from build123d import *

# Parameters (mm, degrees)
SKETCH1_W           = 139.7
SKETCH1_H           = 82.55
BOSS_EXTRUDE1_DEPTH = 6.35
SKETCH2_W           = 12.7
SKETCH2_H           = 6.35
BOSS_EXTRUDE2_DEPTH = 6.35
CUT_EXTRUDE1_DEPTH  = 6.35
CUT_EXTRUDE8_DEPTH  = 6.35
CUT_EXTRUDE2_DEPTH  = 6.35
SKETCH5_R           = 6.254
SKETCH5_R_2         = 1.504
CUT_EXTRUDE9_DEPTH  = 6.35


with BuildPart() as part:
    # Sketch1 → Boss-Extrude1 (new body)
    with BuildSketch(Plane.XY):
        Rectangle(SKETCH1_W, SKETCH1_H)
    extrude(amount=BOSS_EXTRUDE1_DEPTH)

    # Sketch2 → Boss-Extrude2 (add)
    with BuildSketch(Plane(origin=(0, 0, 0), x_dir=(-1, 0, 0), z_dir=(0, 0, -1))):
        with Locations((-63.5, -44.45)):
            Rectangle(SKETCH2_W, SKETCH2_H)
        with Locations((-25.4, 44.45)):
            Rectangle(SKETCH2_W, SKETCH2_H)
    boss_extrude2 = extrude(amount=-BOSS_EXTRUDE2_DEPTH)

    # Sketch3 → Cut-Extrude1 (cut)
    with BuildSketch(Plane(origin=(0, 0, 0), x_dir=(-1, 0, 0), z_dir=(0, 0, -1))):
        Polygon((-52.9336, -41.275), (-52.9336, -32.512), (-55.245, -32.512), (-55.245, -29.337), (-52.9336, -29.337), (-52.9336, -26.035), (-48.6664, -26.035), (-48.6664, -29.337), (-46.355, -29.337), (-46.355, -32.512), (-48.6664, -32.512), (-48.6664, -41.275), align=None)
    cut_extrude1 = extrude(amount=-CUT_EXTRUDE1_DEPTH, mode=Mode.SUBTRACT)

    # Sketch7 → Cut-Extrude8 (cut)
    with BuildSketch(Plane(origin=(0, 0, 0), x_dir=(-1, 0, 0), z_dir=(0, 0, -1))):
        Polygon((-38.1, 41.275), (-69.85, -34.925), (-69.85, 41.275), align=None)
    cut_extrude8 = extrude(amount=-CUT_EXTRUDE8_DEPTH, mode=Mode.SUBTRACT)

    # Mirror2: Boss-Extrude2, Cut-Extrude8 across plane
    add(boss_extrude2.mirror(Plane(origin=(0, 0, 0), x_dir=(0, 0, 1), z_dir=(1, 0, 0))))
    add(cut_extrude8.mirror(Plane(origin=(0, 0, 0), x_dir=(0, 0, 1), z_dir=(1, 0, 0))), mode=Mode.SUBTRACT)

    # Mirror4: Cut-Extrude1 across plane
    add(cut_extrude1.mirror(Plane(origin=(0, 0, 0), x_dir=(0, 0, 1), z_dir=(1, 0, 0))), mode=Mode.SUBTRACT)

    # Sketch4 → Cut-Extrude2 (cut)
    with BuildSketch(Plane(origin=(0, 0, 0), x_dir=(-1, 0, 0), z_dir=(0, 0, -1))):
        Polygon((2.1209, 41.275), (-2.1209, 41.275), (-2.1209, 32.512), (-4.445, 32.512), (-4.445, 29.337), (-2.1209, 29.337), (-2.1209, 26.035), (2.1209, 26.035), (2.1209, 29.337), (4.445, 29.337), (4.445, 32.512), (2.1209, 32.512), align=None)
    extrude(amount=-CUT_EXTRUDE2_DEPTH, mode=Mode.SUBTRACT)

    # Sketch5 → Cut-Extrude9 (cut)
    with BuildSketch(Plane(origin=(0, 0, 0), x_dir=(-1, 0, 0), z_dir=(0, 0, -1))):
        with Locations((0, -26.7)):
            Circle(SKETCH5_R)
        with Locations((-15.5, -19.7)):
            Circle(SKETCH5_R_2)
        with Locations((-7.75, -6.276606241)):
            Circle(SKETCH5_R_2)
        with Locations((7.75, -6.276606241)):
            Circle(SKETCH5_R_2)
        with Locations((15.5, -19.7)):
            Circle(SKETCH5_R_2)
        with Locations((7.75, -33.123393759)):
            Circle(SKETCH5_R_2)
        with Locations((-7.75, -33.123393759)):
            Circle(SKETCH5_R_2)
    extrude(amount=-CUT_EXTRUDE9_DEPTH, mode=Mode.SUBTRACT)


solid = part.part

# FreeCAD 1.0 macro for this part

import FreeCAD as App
import Part
import Sketcher
from FreeCAD import Vector
Q = App.Units.Quantity

doc = App.newDocument("Part")
body = doc.addObject("PartDesign::Body", "Body")

sketch1 = body.newObject("Sketcher::SketchObject", "Sketch")
sketch1.AttachmentSupport = (doc.getObject("XY_Plane"), [""])
sketch1.MapMode = "FlatFace"
sketch1.addGeometry([
    Part.LineSegment(Vector(-70, 41, 0), Vector(-70, -41, 0)),
    Part.LineSegment(Vector(-70, -41, 0), Vector(70, -41, 0)),
    Part.LineSegment(Vector(70, -41, 0), Vector(70, 41, 0)),
    Part.LineSegment(Vector(70, 41, 0), Vector(-70, 41, 0)),
], False)
sketch1.addConstraint([
    Sketcher.Constraint("Coincident", 0, 2, 1, 1),
    Sketcher.Constraint("Coincident", 1, 2, 2, 1),
    Sketcher.Constraint("Coincident", 2, 2, 3, 1),
    Sketcher.Constraint("Coincident", 3, 2, 0, 1),
    Sketcher.Constraint("Vertical", 0),
    Sketcher.Constraint("Horizontal", 1),
    Sketcher.Constraint("Vertical", 2),
    Sketcher.Constraint("Horizontal", 3),
    Sketcher.Constraint("Symmetric", 0, 2, 2, 2, -1, 1),
    Sketcher.Constraint("DistanceX", 1, 1, 1, 2, Q("5.5 in")),
    Sketcher.Constraint("DistanceY", 0, 2, 0, 1, Q("3.25 in")),
])
pad1 = body.newObject("PartDesign::Pad", "Pad")
pad1.Profile = sketch1
pad1.Length = Q("0.25 in")

sketch2 = body.newObject("Sketcher::SketchObject", "Sketch001")
sketch2.AttachmentSupport = (doc.getObject("XY_Plane"), [""])
sketch2.MapMode = "FlatFace"
sketch2.addGeometry([
    Part.LineSegment(Vector(70, -41, 0), Vector(70, -48, 0)),
    Part.LineSegment(Vector(70, -48, 0), Vector(57, -48, 0)),
    Part.LineSegment(Vector(57, -48, 0), Vector(57, -41, 0)),
    Part.LineSegment(Vector(57, -41, 0), Vector(70, -41, 0)),
    Part.LineSegment(Vector(32, 48, 0), Vector(32, 41, 0)),
    Part.LineSegment(Vector(32, 41, 0), Vector(19, 41, 0)),
    Part.LineSegment(Vector(19, 41, 0), Vector(19, 48, 0)),
    Part.LineSegment(Vector(19, 48, 0), Vector(32, 48, 0)),
], False)
sketch2.addConstraint([
    Sketcher.Constraint("Coincident", 0, 2, 1, 1),
    Sketcher.Constraint("Coincident", 1, 2, 2, 1),
    Sketcher.Constraint("Coincident", 2, 2, 3, 1),
    Sketcher.Constraint("Coincident", 3, 2, 0, 1),
    Sketcher.Constraint("Coincident", 4, 2, 5, 1),
    Sketcher.Constraint("Coincident", 5, 2, 6, 1),
    Sketcher.Constraint("Coincident", 6, 2, 7, 1),
    Sketcher.Constraint("Coincident", 7, 2, 4, 1),
    Sketcher.Constraint("Vertical", 0),
    Sketcher.Constraint("Horizontal", 1),
    Sketcher.Constraint("Vertical", 2),
    Sketcher.Constraint("Horizontal", 3),
    Sketcher.Constraint("Vertical", 4),
    Sketcher.Constraint("Horizontal", 5),
    Sketcher.Constraint("Vertical", 6),
    Sketcher.Constraint("Horizontal", 7),
    Sketcher.Constraint("Equal", 3, 5),
    Sketcher.Constraint("Equal", 2, 4),
    Sketcher.Constraint("DistanceX", 1, 2, 1, 1, Q("0.5 in")),
    Sketcher.Constraint("DistanceX", 4, 2, 2, 2, Q("1 in")),
    Sketcher.Constraint("DistanceY", 0, 2, 0, 1, Q("0.25 in")),
    Sketcher.Constraint("DistanceY", 1, 2, 4, 2, Q("3.5 in")),
    Sketcher.Constraint("DistanceX", -1, 1, 0, 2, Q("2.75 in")),
    Sketcher.Constraint("DistanceY", 0, 2, -1, 1, Q("1.875 in")),
])
pad2 = body.newObject("PartDesign::Pad", "Pad001")
pad2.Profile = sketch2
pad2.Length = Q("0.25 in")

sketch3 = body.newObject("Sketcher::SketchObject", "Sketch002")
sketch3.AttachmentSupport = (doc.getObject("XY_Plane"), [""])
sketch3.MapMode = "FlatFace"
sketch3.addGeometry([
    Part.LineSegment(Vector(52.9, -32.5, 0), Vector(52.9, -41.3, 0)),
    Part.LineSegment(Vector(52.9, -41.3, 0), Vector(48.7, -41.3, 0)),
    Part.LineSegment(Vector(48.7, -41.3, 0), Vector(48.7, -32.5, 0)),
    Part.LineSegment(Vector(48.7, -32.5, 0), Vector(46.4, -32.5, 0)),
    Part.LineSegment(Vector(46.4, -32.5, 0), Vector(46.4, -29.3, 0)),
    Part.LineSegment(Vector(46.4, -29.3, 0), Vector(48.7, -29.3, 0)),
    Part.LineSegment(Vector(48.7, -29.3, 0), Vector(48.7, -26, 0)),
    Part.LineSegment(Vector(48.7, -26, 0), Vector(52.9, -26, 0)),
    Part.LineSegment(Vector(52.9, -26, 0), Vector(52.9, -29.3, 0)),
    Part.LineSegment(Vector(52.9, -29.3, 0), Vector(55.2, -29.3, 0)),
    Part.LineSegment(Vector(55.2, -29.3, 0), Vector(55.2, -32.5, 0)),
    Part.LineSegment(Vector(55.2, -32.5, 0), Vector(52.9, -32.5, 0)),
], False)
sketch3.addConstraint([
    Sketcher.Constraint("Coincident", 0, 2, 1, 1),
    Sketcher.Constraint("Coincident", 1, 2, 2, 1),
    Sketcher.Constraint("Coincident", 2, 2, 3, 1),
    Sketcher.Constraint("Coincident", 3, 2, 4, 1),
    Sketcher.Constraint("Coincident", 4, 2, 5, 1),
    Sketcher.Constraint("Coincident", 5, 2, 6, 1),
    Sketcher.Constraint("Coincident", 6, 2, 7, 1),
    Sketcher.Constraint("Coincident", 7, 2, 8, 1),
    Sketcher.Constraint("Coincident", 8, 2, 9, 1),
    Sketcher.Constraint("Coincident", 9, 2, 10, 1),
    Sketcher.Constraint("Coincident", 10, 2, 11, 1),
    Sketcher.Constraint("Coincident", 11, 2, 0, 1),
    Sketcher.Constraint("Vertical", 0),
    Sketcher.Constraint("Horizontal", 1),
    Sketcher.Constraint("Vertical", 2),
    Sketcher.Constraint("Horizontal", 3),
    Sketcher.Constraint("Vertical", 4),
    Sketcher.Constraint("Horizontal", 5),
    Sketcher.Constraint("Vertical", 6),
    Sketcher.Constraint("Horizontal", 7),
    Sketcher.Constraint("Vertical", 8),
    Sketcher.Constraint("Horizontal", 9),
    Sketcher.Constraint("Vertical", 10),
    Sketcher.Constraint("Horizontal", 11),
    Sketcher.Constraint("Horizontal", 5, 2, 8, 2),
    Sketcher.Constraint("Horizontal", 3, 2, 10, 2),
    Sketcher.Constraint("Vertical", 2, 2, 5, 2),
    Sketcher.Constraint("Vertical", 0, 2, 7, 2),
    Sketcher.Constraint("Equal", 5, 9),
    Sketcher.Constraint("DistanceY", 6, 1, 6, 2, Q("0.13 in")),
    Sketcher.Constraint("DistanceY", 1, 2, 6, 2, Q("0.6 in")),
    Sketcher.Constraint("DistanceX", 1, 2, 1, 1, Q("0.168 in")),
    Sketcher.Constraint("DistanceX", 3, 2, 3, 1, Q("0.091 in")),
    Sketcher.Constraint("DistanceY", 0, 2, 0, 1, Q("0.345 in")),
    Sketcher.Constraint("DistanceY", 2, 2, -1, 1, Q("1.28 in")),
    Sketcher.Constraint("DistanceX", -1, 1, 0, 2, Q("2.084 in")),
])
pocket1 = body.newObject("PartDesign::Pocket", "Pocket")
pocket1.Profile = sketch3
pocket1.Length = Q("0.25 in")
pocket1.Reversed = True

sketch4 = body.newObject("Sketcher::SketchObject", "Sketch003")
sketch4.AttachmentSupport = (doc.getObject("XY_Plane"), [""])
sketch4.MapMode = "FlatFace"
sketch4.addGeometry([
    Part.LineSegment(Vector(70, -35, 0), Vector(38, 41, 0)),
    Part.LineSegment(Vector(38, 41, 0), Vector(70, 41, 0)),
    Part.LineSegment(Vector(70, 41, 0), Vector(70, -35, 0)),
], False)
sketch4.addConstraint([
    Sketcher.Constraint("Coincident", 0, 2, 1, 1),
    Sketcher.Constraint("Coincident", 1, 2, 2, 1),
    Sketcher.Constraint("Coincident", 2, 2, 0, 1),
    Sketcher.Constraint("Horizontal", 1),
    Sketcher.Constraint("Vertical", 2),
    Sketcher.Constraint("DistanceY", 2, 2, 2, 1, Q("3 in")),
    Sketcher.Constraint("DistanceX", 1, 1, 1, 2, Q("1.25 in")),
    Sketcher.Constraint("DistanceX", -1, 1, 0, 2, Q("1.5 in")),
    Sketcher.Constraint("DistanceY", -1, 1, 0, 2, Q("1.625 in")),
])
pocket2 = body.newObject("PartDesign::Pocket", "Pocket001")
pocket2.Profile = sketch4
pocket2.Length = Q("0.25 in")
pocket2.Reversed = True
doc.recompute()

mirrored = body.newObject("PartDesign::Mirrored", "Mirrored")
mirrored.Originals = [pad2, pocket2]
mirrored.MirrorPlane = (doc.getObject("YZ_Plane"), [""])
body.Tip = mirrored
doc.recompute()

mirrored2 = body.newObject("PartDesign::Mirrored", "Mirrored001")
mirrored2.Originals = [pocket1]
mirrored2.MirrorPlane = (doc.getObject("YZ_Plane"), [""])
body.Tip = mirrored2

sketch5 = body.newObject("Sketcher::SketchObject", "Sketch004")
sketch5.AttachmentSupport = (doc.getObject("XY_Plane"), [""])
sketch5.MapMode = "FlatFace"
sketch5.addGeometry([
    Part.LineSegment(Vector(-2.1, 41.3, 0), Vector(2.1, 41.3, 0)),
    Part.LineSegment(Vector(2.1, 41.3, 0), Vector(2.1, 32.5, 0)),
    Part.LineSegment(Vector(2.1, 32.5, 0), Vector(4.4, 32.5, 0)),
    Part.LineSegment(Vector(4.4, 32.5, 0), Vector(4.4, 29.3, 0)),
    Part.LineSegment(Vector(4.4, 29.3, 0), Vector(2.1, 29.3, 0)),
    Part.LineSegment(Vector(2.1, 29.3, 0), Vector(2.1, 26, 0)),
    Part.LineSegment(Vector(2.1, 26, 0), Vector(-2.1, 26, 0)),
    Part.LineSegment(Vector(-2.1, 26, 0), Vector(-2.1, 29.3, 0)),
    Part.LineSegment(Vector(-2.1, 29.3, 0), Vector(-4.4, 29.3, 0)),
    Part.LineSegment(Vector(-4.4, 29.3, 0), Vector(-4.4, 32.5, 0)),
    Part.LineSegment(Vector(-4.4, 32.5, 0), Vector(-2.1, 32.5, 0)),
    Part.LineSegment(Vector(-2.1, 32.5, 0), Vector(-2.1, 41.3, 0)),
], False)
sketch5.addConstraint([
    Sketcher.Constraint("Coincident", 0, 2, 1, 1),
    Sketcher.Constraint("Coincident", 1, 2, 2, 1),
    Sketcher.Constraint("Coincident", 2, 2, 3, 1),
    Sketcher.Constraint("Coincident", 3, 2, 4, 1),
    Sketcher.Constraint("Coincident", 4, 2, 5, 1),
    Sketcher.Constraint("Coincident", 5, 2, 6, 1),
    Sketcher.Constraint("Coincident", 6, 2, 7, 1),
    Sketcher.Constraint("Coincident", 7, 2, 8, 1),
    Sketcher.Constraint("Coincident", 8, 2, 9, 1),
    Sketcher.Constraint("Coincident", 9, 2, 10, 1),
    Sketcher.Constraint("Coincident", 10, 2, 11, 1),
    Sketcher.Constraint("Coincident", 11, 2, 0, 1),
    Sketcher.Constraint("Horizontal", 0),
    Sketcher.Constraint("Vertical", 1),
    Sketcher.Constraint("Horizontal", 2),
    Sketcher.Constraint("Vertical", 3),
    Sketcher.Constraint("Horizontal", 4),
    Sketcher.Constraint("Vertical", 5),
    Sketcher.Constraint("Horizontal", 6),
    Sketcher.Constraint("Vertical", 7),
    Sketcher.Constraint("Horizontal", 8),
    Sketcher.Constraint("Vertical", 9),
    Sketcher.Constraint("Horizontal", 10),
    Sketcher.Constraint("Vertical", 11),
    Sketcher.Constraint("Symmetric", 4, 2, 7, 2, -2),
    Sketcher.Constraint("Symmetric", 2, 2, 9, 2, -2),
    Sketcher.Constraint("Vertical", 1, 2, 4, 2),
    Sketcher.Constraint("Vertical", 7, 2, 10, 2),
    Sketcher.Constraint("DistanceY", 5, 2, 5, 1, Q("0.13 in")),
    Sketcher.Constraint("DistanceY", 5, 2, 0, 2, Q("0.6 in")),
    Sketcher.Constraint("DistanceX", 0, 1, 0, 2, Q("0.167 in")),
    Sketcher.Constraint("DistanceY", 1, 2, 1, 1, Q("0.345 in")),
    Sketcher.Constraint("DistanceY", -1, 1, 1, 2, Q("1.28 in")),
    Sketcher.Constraint("DistanceX", 2, 1, 2, 2, Q("0.0915 in")),
])
pocket3 = body.newObject("PartDesign::Pocket", "Pocket002")
pocket3.Profile = sketch5
pocket3.Length = Q("0.25 in")
pocket3.Reversed = True

sketch6 = body.newObject("Sketcher::SketchObject", "Sketch005")
sketch6.AttachmentSupport = (doc.getObject("XY_Plane"), [""])
sketch6.MapMode = "FlatFace"
sketch6.addGeometry([
    Part.Circle(Vector(0, -26.7, 0), Vector(0, 0, 1), 6.3),
    Part.Circle(Vector(15.5, -19.7, 0), Vector(0, 0, 1), 1.5),
    Part.Circle(Vector(7.8, -6.3, 0), Vector(0, 0, 1), 1.5),
    Part.Circle(Vector(-7.8, -6.3, 0), Vector(0, 0, 1), 1.5),
    Part.Circle(Vector(-15.5, -19.7, 0), Vector(0, 0, 1), 1.5),
    Part.Circle(Vector(-7.8, -33.1, 0), Vector(0, 0, 1), 1.5),
    Part.Circle(Vector(7.8, -33.1, 0), Vector(0, 0, 1), 1.5),
], False)
sketch6.addConstraint([
    Sketcher.Constraint("Equal", 1, 2),
    Sketcher.Constraint("Equal", 2, 3),
    Sketcher.Constraint("Equal", 3, 4),
    Sketcher.Constraint("Equal", 4, 5),
    Sketcher.Constraint("Equal", 5, 6),
    Sketcher.Constraint("Symmetric", 2, 3, 3, 3, -2),
    Sketcher.Constraint("Symmetric", 1, 3, 4, 3, -2),
    Sketcher.Constraint("Symmetric", 5, 3, 6, 3, -2),
    Sketcher.Constraint("PointOnObject", 0, 3, -2),
    Sketcher.Constraint("Vertical", 3, 3, 5, 3),
    Sketcher.Constraint("Diameter", 0, Q("12.508 mm")),
    Sketcher.Constraint("Diameter", 1, Q("3.008 mm")),
    Sketcher.Constraint("DistanceY", 0, 3, -1, 1, Q("26.7 mm")),
    Sketcher.Constraint("DistanceX", -1, 1, 1, 3, Q("15.5 mm")),
    Sketcher.Constraint("DistanceY", 1, 3, -1, 1, Q("19.7 mm")),
    Sketcher.Constraint("DistanceX", -1, 1, 2, 3, Q("7.75 mm")),
    Sketcher.Constraint("DistanceY", 2, 3, -1, 1, Q("6.276606 mm")),
    Sketcher.Constraint("DistanceY", 5, 3, -1, 1, Q("33.123394 mm")),
])
pocket4 = body.newObject("PartDesign::Pocket", "Pocket003")
pocket4.Profile = sketch6
pocket4.Length = Q("0.25 in")
pocket4.Reversed = True

doc.recompute()
